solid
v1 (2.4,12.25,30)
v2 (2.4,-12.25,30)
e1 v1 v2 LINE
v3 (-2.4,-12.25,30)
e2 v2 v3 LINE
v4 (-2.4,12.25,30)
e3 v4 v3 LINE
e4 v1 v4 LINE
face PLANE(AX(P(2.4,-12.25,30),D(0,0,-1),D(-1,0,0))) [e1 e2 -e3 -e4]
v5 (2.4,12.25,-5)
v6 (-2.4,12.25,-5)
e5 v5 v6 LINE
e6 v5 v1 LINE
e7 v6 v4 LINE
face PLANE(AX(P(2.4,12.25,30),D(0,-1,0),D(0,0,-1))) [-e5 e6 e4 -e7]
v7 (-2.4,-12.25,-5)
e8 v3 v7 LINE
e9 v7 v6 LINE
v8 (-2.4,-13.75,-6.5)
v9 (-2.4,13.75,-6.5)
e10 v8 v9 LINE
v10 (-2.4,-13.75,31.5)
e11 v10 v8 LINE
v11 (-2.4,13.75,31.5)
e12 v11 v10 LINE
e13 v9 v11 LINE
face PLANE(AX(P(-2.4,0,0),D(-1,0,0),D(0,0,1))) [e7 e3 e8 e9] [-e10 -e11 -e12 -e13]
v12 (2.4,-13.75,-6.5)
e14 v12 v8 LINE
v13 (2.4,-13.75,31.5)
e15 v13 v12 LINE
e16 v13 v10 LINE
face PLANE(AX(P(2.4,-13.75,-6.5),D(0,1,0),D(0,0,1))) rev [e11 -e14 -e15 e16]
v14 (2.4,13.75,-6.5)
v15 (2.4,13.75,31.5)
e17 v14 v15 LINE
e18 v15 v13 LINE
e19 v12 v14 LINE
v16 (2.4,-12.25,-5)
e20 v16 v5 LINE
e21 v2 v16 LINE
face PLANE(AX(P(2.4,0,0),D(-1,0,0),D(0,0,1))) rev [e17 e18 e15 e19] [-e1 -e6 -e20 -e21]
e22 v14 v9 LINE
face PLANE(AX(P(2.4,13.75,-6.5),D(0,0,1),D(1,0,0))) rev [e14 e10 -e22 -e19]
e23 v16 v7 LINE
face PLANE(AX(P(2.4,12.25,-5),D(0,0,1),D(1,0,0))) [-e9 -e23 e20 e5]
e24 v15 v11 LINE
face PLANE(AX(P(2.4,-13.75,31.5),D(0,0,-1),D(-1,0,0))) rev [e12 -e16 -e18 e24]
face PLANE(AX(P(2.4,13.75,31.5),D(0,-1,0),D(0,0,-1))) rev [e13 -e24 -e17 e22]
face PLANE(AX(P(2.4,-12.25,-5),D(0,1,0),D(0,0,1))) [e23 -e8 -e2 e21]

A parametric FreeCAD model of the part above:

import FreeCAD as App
import Part
import Sketcher

V = App.Vector
Q = App.Units.Quantity


def add_polygon(sketch, points):
    """Adds a closed chain of lines whose ends are joined by coincident constraints."""
    first, n = sketch.GeometryCount, len(points)
    for a, b in zip(points, points[1:] + points[:1]):
        sketch.addGeometry(Part.LineSegment(App.Vector(*a, 0), App.Vector(*b, 0)), False)
    for i in range(n):
        sketch.addConstraint(Sketcher.Constraint("Coincident", first + i, 2, first + (i + 1) % n, 1))

doc = App.newDocument("Part")
params = doc.addObject("Spreadsheet::Sheet", "Params")
for row, (alias, value) in enumerate([
    ("sketch1_height", "38 mm"),
    ("sketch1_height2", "35 mm"),
    ("sketch1_width", "27.5 mm"),
    ("sketch1_width2", "24.5 mm"),
    ("pad1_length", "4.8 mm"),
], start=1):
    params.set(f"A{row}", alias)
    params.set(f"B{row}", "=" + value)
    params.setAlias(f"B{row}", alias)

body = doc.addObject("PartDesign::Body", "Body")

sketch1 = body.newObject("Sketcher::SketchObject", "Sketch")
sketch1.AttachmentSupport = (doc.getObject("YZ_Plane"), [""])
sketch1.MapMode = "FlatFace"
add_polygon(sketch1, [(14, 32), (-14, 32), (-14, -6), (14, -6)])
add_polygon(sketch1, [(-12, -5), (-12, 30), (12, 30), (12, -5)])
sketch1.addConstraint([
    Sketcher.Constraint("Horizontal", 0),
    Sketcher.Constraint("Vertical", 1),
    Sketcher.Constraint("Horizontal", 2),
    Sketcher.Constraint("Vertical", 3),
    Sketcher.Constraint("Vertical", 4),
    Sketcher.Constraint("Horizontal", 5),
    Sketcher.Constraint("Vertical", 6),
    Sketcher.Constraint("Horizontal", 7),
    Sketcher.Constraint("DistanceY", 1, 2, 1, 1, Q("38 mm")),
    Sketcher.Constraint("DistanceY", 4, 1, 4, 2, Q("35 mm")),
    Sketcher.Constraint("DistanceX", 0, 2, 0, 1, Q("27.5 mm")),
    Sketcher.Constraint("DistanceX", 5, 1, 5, 2, Q("24.5 mm")),
    Sketcher.Constraint("DistanceY", -1, 1, 4, 2, Q("30 mm")),
    Sketcher.Constraint("DistanceX", 4, 2, 3, 2, Q("26 mm")),
    Sketcher.Constraint("DistanceY", -1, 1, 0, 2, Q("31.5 mm")),
    Sketcher.Constraint("DistanceX", 0, 2, -1, 1, Q("13.75 mm")),
])
sketch1.setExpression("Constraints[16]", "Params.sketch1_height")
sketch1.setExpression("Constraints[17]", "Params.sketch1_height2")
sketch1.setExpression("Constraints[18]", "Params.sketch1_width")
sketch1.setExpression("Constraints[19]", "Params.sketch1_width2")
pad1 = body.newObject("PartDesign::Pad", "Pad")
pad1.Profile = sketch1
pad1.setExpression("Length", "Params.pad1_length")
pad1.Midplane = True

doc.recompute()
